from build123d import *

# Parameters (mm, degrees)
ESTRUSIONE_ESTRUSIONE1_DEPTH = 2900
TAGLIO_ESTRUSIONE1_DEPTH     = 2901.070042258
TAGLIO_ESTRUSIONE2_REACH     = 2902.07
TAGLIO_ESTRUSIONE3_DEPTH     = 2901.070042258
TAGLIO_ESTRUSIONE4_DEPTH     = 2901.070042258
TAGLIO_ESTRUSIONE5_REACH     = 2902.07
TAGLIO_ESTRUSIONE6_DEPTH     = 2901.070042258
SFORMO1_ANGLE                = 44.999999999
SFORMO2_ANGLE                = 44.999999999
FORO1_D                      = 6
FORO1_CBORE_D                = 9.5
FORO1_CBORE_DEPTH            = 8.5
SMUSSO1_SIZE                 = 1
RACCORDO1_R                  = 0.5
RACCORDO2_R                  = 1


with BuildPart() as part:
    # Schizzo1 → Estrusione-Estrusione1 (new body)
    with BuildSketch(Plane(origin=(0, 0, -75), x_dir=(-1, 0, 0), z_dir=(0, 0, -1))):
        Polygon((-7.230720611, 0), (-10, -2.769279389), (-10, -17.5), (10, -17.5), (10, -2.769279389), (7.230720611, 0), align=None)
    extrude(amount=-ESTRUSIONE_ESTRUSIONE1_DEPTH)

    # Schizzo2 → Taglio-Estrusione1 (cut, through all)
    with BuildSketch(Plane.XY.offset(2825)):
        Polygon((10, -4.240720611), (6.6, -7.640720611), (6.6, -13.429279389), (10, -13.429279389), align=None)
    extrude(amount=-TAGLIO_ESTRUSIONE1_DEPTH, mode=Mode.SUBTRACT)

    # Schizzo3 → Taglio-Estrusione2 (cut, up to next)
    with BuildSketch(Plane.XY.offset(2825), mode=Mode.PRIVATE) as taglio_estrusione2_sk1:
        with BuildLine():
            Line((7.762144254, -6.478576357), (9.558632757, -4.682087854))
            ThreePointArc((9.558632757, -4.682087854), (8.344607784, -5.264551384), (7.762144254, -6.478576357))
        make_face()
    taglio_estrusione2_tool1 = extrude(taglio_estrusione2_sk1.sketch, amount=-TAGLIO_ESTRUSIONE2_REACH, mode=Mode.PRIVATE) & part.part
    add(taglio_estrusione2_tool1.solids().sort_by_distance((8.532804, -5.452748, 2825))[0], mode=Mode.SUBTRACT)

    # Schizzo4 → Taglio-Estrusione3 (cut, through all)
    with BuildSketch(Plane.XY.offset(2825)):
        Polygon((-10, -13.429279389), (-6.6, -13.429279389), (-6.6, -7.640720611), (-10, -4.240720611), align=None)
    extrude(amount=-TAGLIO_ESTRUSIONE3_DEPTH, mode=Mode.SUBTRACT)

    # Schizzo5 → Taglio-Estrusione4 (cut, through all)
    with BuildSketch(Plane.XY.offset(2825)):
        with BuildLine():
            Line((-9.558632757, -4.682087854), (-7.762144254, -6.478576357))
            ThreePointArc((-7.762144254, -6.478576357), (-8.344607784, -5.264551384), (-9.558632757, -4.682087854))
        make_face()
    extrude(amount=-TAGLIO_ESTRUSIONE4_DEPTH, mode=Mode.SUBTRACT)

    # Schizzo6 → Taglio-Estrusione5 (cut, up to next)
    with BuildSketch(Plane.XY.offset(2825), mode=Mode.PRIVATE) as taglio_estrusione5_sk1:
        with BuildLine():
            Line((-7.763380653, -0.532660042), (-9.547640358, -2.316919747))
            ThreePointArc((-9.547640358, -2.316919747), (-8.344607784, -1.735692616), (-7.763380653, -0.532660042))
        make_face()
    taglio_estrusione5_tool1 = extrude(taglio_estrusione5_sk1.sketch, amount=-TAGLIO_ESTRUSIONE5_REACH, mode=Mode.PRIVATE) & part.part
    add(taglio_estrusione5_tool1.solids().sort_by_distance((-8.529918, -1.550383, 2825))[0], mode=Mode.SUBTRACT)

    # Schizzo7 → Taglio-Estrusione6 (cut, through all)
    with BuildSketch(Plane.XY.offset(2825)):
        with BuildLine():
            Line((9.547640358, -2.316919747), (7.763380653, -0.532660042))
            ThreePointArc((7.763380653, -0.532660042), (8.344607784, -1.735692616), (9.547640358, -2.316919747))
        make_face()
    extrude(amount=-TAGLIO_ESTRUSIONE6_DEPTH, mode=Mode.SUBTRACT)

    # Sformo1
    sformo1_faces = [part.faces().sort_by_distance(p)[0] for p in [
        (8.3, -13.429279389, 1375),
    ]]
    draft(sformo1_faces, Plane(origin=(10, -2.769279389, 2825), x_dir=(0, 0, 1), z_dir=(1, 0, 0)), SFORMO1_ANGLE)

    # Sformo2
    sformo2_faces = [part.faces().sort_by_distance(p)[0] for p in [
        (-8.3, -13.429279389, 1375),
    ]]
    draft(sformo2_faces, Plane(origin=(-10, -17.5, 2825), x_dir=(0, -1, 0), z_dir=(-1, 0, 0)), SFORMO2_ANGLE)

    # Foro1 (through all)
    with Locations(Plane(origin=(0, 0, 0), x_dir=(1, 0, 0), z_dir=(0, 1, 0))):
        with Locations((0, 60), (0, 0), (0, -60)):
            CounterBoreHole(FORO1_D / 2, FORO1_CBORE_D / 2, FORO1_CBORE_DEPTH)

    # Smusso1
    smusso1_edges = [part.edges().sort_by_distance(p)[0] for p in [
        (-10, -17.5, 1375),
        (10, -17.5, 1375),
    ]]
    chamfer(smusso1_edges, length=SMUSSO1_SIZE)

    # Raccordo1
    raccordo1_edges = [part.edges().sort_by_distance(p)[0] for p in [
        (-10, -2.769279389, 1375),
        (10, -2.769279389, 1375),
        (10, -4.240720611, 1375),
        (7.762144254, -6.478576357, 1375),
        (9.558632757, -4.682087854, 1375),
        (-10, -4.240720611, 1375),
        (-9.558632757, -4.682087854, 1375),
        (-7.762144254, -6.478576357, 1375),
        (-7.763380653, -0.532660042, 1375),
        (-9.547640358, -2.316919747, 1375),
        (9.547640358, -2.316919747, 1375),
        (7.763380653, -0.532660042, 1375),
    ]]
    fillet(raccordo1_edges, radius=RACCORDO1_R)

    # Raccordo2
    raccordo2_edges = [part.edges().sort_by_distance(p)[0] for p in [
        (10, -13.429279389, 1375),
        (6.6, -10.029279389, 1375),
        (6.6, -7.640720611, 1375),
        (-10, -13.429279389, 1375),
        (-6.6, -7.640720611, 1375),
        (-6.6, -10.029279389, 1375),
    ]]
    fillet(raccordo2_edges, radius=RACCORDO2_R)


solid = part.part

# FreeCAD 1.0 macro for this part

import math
import FreeCAD as App
import Part
import Sketcher
Q = App.Units.Quantity


def edges_at(feature, points):
    """Names of the edges that pass closest to the given points."""
    edges = feature.Shape.Edges
    near = lambda p: min(range(len(edges)), key=lambda i: edges[i].distToShape(Part.Vertex(*p))[0])
    return sorted({f"Edge{near(p) + 1}" for p in points})


def faces_at(feature, points):
    """Names of the faces that lie closest to the given points."""
    faces = feature.Shape.Faces
    near = lambda p: min(range(len(faces)), key=lambda i: faces[i].distToShape(Part.Vertex(*p))[0])
    return sorted({f"Face{near(p) + 1}" for p in points})

doc = App.newDocument("Part")
body = doc.addObject("PartDesign::Body", "Body")

# Sketch on XY plane
sketch1 = body.newObject("Sketcher::SketchObject", "Sketch")
sketch1.AttachmentSupport = (doc.getObject("XY_Plane"), [""])
sketch1.MapMode = "FlatFace"
sketch1.AttachmentOffset = App.Placement(App.Vector(0, 0, -75), App.Rotation())
sketch1.addGeometry([
    Part.LineSegment(App.Vector(7.2, 0, 0), App.Vector(10, -2.8, 0)),  # 0
    Part.LineSegment(App.Vector(10, -2.8, 0), App.Vector(10, -17.5, 0)),  # 1
    Part.LineSegment(App.Vector(10, -17.5, 0), App.Vector(-10, -17.5, 0)),  # 2
    Part.LineSegment(App.Vector(-10, -17.5, 0), App.Vector(-10, -2.8, 0)),  # 3
    Part.LineSegment(App.Vector(-10, -2.8, 0), App.Vector(-7.2, 0, 0)),  # 4
    Part.LineSegment(App.Vector(-7.2, 0, 0), App.Vector(7.2, 0, 0)),  # 5
], False)
sketch1.addConstraint([
    Sketcher.Constraint("Coincident", 0, 2, 1, 1),
    Sketcher.Constraint("Coincident", 1, 2, 2, 1),
    Sketcher.Constraint("Coincident", 2, 2, 3, 1),
    Sketcher.Constraint("Coincident", 3, 2, 4, 1),
    Sketcher.Constraint("Coincident", 4, 2, 5, 1),
    Sketcher.Constraint("Coincident", 5, 2, 0, 1),
    Sketcher.Constraint("Vertical", 1),
    Sketcher.Constraint("Horizontal", 2),
    Sketcher.Constraint("Vertical", 3),
    Sketcher.Constraint("Horizontal", 5),
    Sketcher.Constraint("Symmetric", 4, 2, 5, 2, -1, 1),
    Sketcher.Constraint("Symmetric", 0, 2, 3, 2, -2),
    Sketcher.Constraint("Perpendicular", 0, 4),
    Sketcher.Constraint("DistanceX", 2, 2, 2, 1, Q("20 mm")),
    Sketcher.Constraint("DistanceY", 1, 2, -1, 1, Q("17.5 mm")),
    Sketcher.Constraint("DistanceX", 5, 1, 5, 2, Q("14.461441 mm")),
])
pad1 = body.newObject("PartDesign::Pad", "Pad")
pad1.Profile = sketch1
pad1.Length = 2900

# Sketch on XY plane
sketch2 = body.newObject("Sketcher::SketchObject", "Sketch001")
sketch2.AttachmentSupport = (doc.getObject("XY_Plane"), [""])
sketch2.MapMode = "FlatFace"
sketch2.AttachmentOffset = App.Placement(App.Vector(0, 0, 2825), App.Rotation())
sketch2.addGeometry([
    Part.LineSegment(App.Vector(10, -4.2, 0), App.Vector(6.6, -7.6, 0)),
    Part.LineSegment(App.Vector(6.6, -7.6, 0), App.Vector(6.6, -13.4, 0)),
    Part.LineSegment(App.Vector(6.6, -13.4, 0), App.Vector(10, -13.4, 0)),
    Part.LineSegment(App.Vector(10, -13.4, 0), App.Vector(10, -4.2, 0)),
], False)
sketch2.addConstraint([
    Sketcher.Constraint("Coincident", 0, 2, 1, 1),
    Sketcher.Constraint("Coincident", 1, 2, 2, 1),
    Sketcher.Constraint("Coincident", 2, 2, 3, 1),
    Sketcher.Constraint("Coincident", 3, 2, 0, 1),
    Sketcher.Constraint("Vertical", 1),
    Sketcher.Constraint("Horizontal", 2),
    Sketcher.Constraint("Vertical", 3),
    Sketcher.Constraint("Angle", 0, Q("-135 deg")),
    Sketcher.Constraint("DistanceX", 2, 1, 2, 2, Q("3.4 mm")),
    Sketcher.Constraint("DistanceX", -1, 1, 2, 2, Q("10 mm")),
    Sketcher.Constraint("DistanceY", 1, 2, 1, 1, Q("5.788559 mm")),
    Sketcher.Constraint("DistanceY", 0, 2, -1, 1, Q("7.640721 mm")),
])
pocket1 = body.newObject("PartDesign::Pocket", "Pocket")
pocket1.Profile = sketch2
pocket1.Type = "ThroughAll"

# Sketch on XY plane
sketch3 = body.newObject("Sketcher::SketchObject", "Sketch002")
sketch3.AttachmentSupport = (doc.getObject("XY_Plane"), [""])
sketch3.MapMode = "FlatFace"
sketch3.AttachmentOffset = App.Placement(App.Vector(0, 0, 2825), App.Rotation())
sketch3.addGeometry([
    Part.LineSegment(App.Vector(7.8, -6.5, 0), App.Vector(9.6, -4.7, 0)),
    Part.ArcOfCircle(Part.Circle(App.Vector(9.8, -6.7, 0), App.Vector(0, 0, 1), 2), math.radians(96), math.radians(174)),
], False)
sketch3.addConstraint([
    Sketcher.Constraint("Coincident", 0, 1, 1, 2),
    Sketcher.Constraint("Coincident", 1, 1, 0, 2),
    Sketcher.Constraint("Angle", 0, Q("45 deg")),
    Sketcher.Constraint("Radius", 1, Q("2.03 mm")),
    Sketcher.Constraint("DistanceY", 1, 3, 0, 1, Q("0.221402 mm")),
    Sketcher.Constraint("DistanceY", 1, 3, -1, 1, Q("6.699978 mm")),
    Sketcher.Constraint("DistanceX", -1, 1, 1, 3, Q("9.780035 mm")),
])
pocket2 = body.newObject("PartDesign::Pocket", "Pocket001")
pocket2.Profile = sketch3
pocket2.Type = "UpToFirst"

# Sketch on XY plane
sketch4 = body.newObject("Sketcher::SketchObject", "Sketch003")
sketch4.AttachmentSupport = (doc.getObject("XY_Plane"), [""])
sketch4.MapMode = "FlatFace"
sketch4.AttachmentOffset = App.Placement(App.Vector(0, 0, 2825), App.Rotation())
sketch4.addGeometry([
    Part.LineSegment(App.Vector(-10, -13.4, 0), App.Vector(-6.6, -13.4, 0)),
    Part.LineSegment(App.Vector(-6.6, -13.4, 0), App.Vector(-6.6, -7.6, 0)),
    Part.LineSegment(App.Vector(-6.6, -7.6, 0), App.Vector(-10, -4.2, 0)),
    Part.LineSegment(App.Vector(-10, -4.2, 0), App.Vector(-10, -13.4, 0)),
], False)
sketch4.addConstraint([
    Sketcher.Constraint("Coincident", 0, 2, 1, 1),
    Sketcher.Constraint("Coincident", 1, 2, 2, 1),
    Sketcher.Constraint("Coincident", 2, 2, 3, 1),
    Sketcher.Constraint("Coincident", 3, 2, 0, 1),
    Sketcher.Constraint("Horizontal", 0),
    Sketcher.Constraint("Vertical", 1),
    Sketcher.Constraint("Vertical", 3),
    Sketcher.Constraint("Angle", 2, Q("135 deg")),
    Sketcher.Constraint("DistanceX", 0, 1, 0, 2, Q("3.4 mm")),
    Sketcher.Constraint("DistanceX", 2, 2, -1, 1, Q("10 mm")),
    Sketcher.Constraint("DistanceY", 1, 1, 1, 2, Q("5.788559 mm")),
    Sketcher.Constraint("DistanceY", 0, 2, -1, 1, Q("13.429279 mm")),
])
pocket3 = body.newObject("PartDesign::Pocket", "Pocket002")
pocket3.Profile = sketch4
pocket3.Type = "ThroughAll"

# Sketch on XY plane
sketch5 = body.newObject("Sketcher::SketchObject", "Sketch004")
sketch5.AttachmentSupport = (doc.getObject("XY_Plane"), [""])
sketch5.MapMode = "FlatFace"
sketch5.AttachmentOffset = App.Placement(App.Vector(0, 0, 2825), App.Rotation())
sketch5.addGeometry([
    Part.LineSegment(App.Vector(-9.6, -4.7, 0), App.Vector(-7.8, -6.5, 0)),
    Part.ArcOfCircle(Part.Circle(App.Vector(-9.8, -6.7, 0), App.Vector(0, 0, 1), 2), math.radians(6), math.radians(84)),
], False)
sketch5.addConstraint([
    Sketcher.Constraint("Coincident", 0, 1, 1, 2),
    Sketcher.Constraint("Coincident", 1, 1, 0, 2),
    Sketcher.Constraint("Angle", 0, Q("-45 deg")),
    Sketcher.Constraint("Radius", 1, Q("2.03 mm")),
    Sketcher.Constraint("DistanceX", 1, 3, 0, 1, Q("0.221402 mm")),
    Sketcher.Constraint("DistanceY", 1, 3, -1, 1, Q("6.699978 mm")),
    Sketcher.Constraint("DistanceX", 1, 3, -1, 1, Q("9.780035 mm")),
])
pocket4 = body.newObject("PartDesign::Pocket", "Pocket003")
pocket4.Profile = sketch5
pocket4.Type = "ThroughAll"

# Sketch on XY plane
sketch6 = body.newObject("Sketcher::SketchObject", "Sketch005")
sketch6.AttachmentSupport = (doc.getObject("XY_Plane"), [""])
sketch6.MapMode = "FlatFace"
sketch6.AttachmentOffset = App.Placement(App.Vector(0, 0, 2825), App.Rotation())
sketch6.addGeometry([
    Part.LineSegment(App.Vector(-7.8, -0.5, 0), App.Vector(-9.5, -2.3, 0)),
    Part.ArcOfCircle(Part.Circle(App.Vector(-9.8, -0.3, 0), App.Vector(0, 0, 1), 2), math.radians(-83), math.radians(-7)),
], False)
sketch6.addConstraint([
    Sketcher.Constraint("Coincident", 0, 1, 1, 2),
    Sketcher.Constraint("Coincident", 1, 1, 0, 2),
    Sketcher.Constraint("Angle", 0, Q("-135 deg")),
    Sketcher.Constraint("Radius", 1, Q("2.03 mm")),
    Sketcher.Constraint("DistanceX", 0, 1, -1, 1, Q("7.763381 mm")),
    Sketcher.Constraint("DistanceY", 0, 1, -1, 1, Q("0.53266 mm")),
    Sketcher.Constraint("DistanceX", 1, 1, -1, 1, Q("9.54764 mm")),
])
pocket5 = body.newObject("PartDesign::Pocket", "Pocket004")
pocket5.Profile = sketch6
pocket5.Type = "UpToFirst"

# Sketch on XY plane
sketch7 = body.newObject("Sketcher::SketchObject", "Sketch006")
sketch7.AttachmentSupport = (doc.getObject("XY_Plane"), [""])
sketch7.MapMode = "FlatFace"
sketch7.AttachmentOffset = App.Placement(App.Vector(0, 0, 2825), App.Rotation())
sketch7.addGeometry([
    Part.LineSegment(App.Vector(9.5, -2.3, 0), App.Vector(7.8, -0.5, 0)),
    Part.ArcOfCircle(Part.Circle(App.Vector(9.8, -0.3, 0), App.Vector(0, 0, 1), 2), math.radians(-173), math.radians(-97)),
], False)
sketch7.addConstraint([
    Sketcher.Constraint("Coincident", 0, 1, 1, 2),
    Sketcher.Constraint("Coincident", 1, 1, 0, 2),
    Sketcher.Constraint("Angle", 0, Q("135 deg")),
    Sketcher.Constraint("Radius", 1, Q("2.03 mm")),
    Sketcher.Constraint("DistanceX", -1, 1, 0, 1, Q("9.54764 mm")),
    Sketcher.Constraint("DistanceY", 0, 1, -1, 1, Q("2.31692 mm")),
    Sketcher.Constraint("DistanceX", -1, 1, 1, 1, Q("7.763381 mm")),
])
pocket6 = body.newObject("PartDesign::Pocket", "Pocket005")
pocket6.Profile = sketch7
pocket6.Type = "ThroughAll"
doc.recompute()

datumplane = body.newObject("PartDesign::Plane", "DatumPlane")
datumplane.AttachmentSupport = (doc.getObject("YZ_Plane"), [""])
datumplane.MapMode = "FlatFace"
datumplane.AttachmentOffset = App.Placement(App.Vector(0, 0, 10), App.Rotation())
draft = body.newObject("PartDesign::Draft", "Draft")
draft.Base = (pocket6, faces_at(pocket6, [(8.3, -13.429, 1375)]))
draft.NeutralPlane = (datumplane, [""])
draft.Angle = 45
draft.Reversed = False
doc.recompute()

datumplane2 = body.newObject("PartDesign::Plane", "DatumPlane001")
datumplane2.AttachmentSupport = (doc.getObject("YZ_Plane"), [""])
datumplane2.MapMode = "FlatFace"
datumplane2.AttachmentOffset = App.Placement(App.Vector(0, 0, -10), App.Rotation())
draft2 = body.newObject("PartDesign::Draft", "Draft001")
draft2.Base = (draft, faces_at(draft, [(-8.3, -13.429, 1375)]))
draft2.NeutralPlane = (datumplane2, [""])
draft2.Angle = 45
draft2.Reversed = True

# Sketch on XZ plane
sketch8 = body.newObject("Sketcher::SketchObject", "Sketch007")
sketch8.AttachmentSupport = (doc.getObject("XZ_Plane"), [""])
sketch8.MapMode = "FlatFace"
sketch8.addGeometry([
    Part.Circle(App.Vector(0, -60, 0), App.Vector(0, 0, 1), 3),
    Part.Circle(App.Vector(0, 0, 0), App.Vector(0, 0, 1), 3),
    Part.Circle(App.Vector(0, 60, 0), App.Vector(0, 0, 1), 3),
], False)
sketch8.addConstraint([
    Sketcher.Constraint("Coincident", 1, 3, -1, 1),
    Sketcher.Constraint("Equal", 0, 1),
    Sketcher.Constraint("Equal", 1, 2),
    Sketcher.Constraint("Symmetric", 0, 3, 2, 3, -1, 1),
    Sketcher.Constraint("PointOnObject", 0, 3, -2),
    Sketcher.Constraint("Diameter", 0, Q("6 mm")),
    Sketcher.Constraint("DistanceY", 0, 3, -1, 1, Q("60 mm")),
])
doc.recompute()
hole = body.newObject("PartDesign::Hole", "Hole")
hole.Profile = sketch8
hole.ThreadType = "None"
hole.Diameter = 6
hole.DepthType = "ThroughAll"
hole.HoleCutType = "Counterbore"
hole.HoleCutDiameter = 9.5
hole.HoleCutDepth = 8.5
hole.Reversed = True
doc.recompute()

chamfer = body.newObject("PartDesign::Chamfer", "Chamfer")
chamfer.Base = (hole, edges_at(hole, [(-10, -17.5, 1375), (10, -17.5, 1375)]))
chamfer.Size = 1
doc.recompute()

fillet = body.newObject("PartDesign::Fillet", "Fillet")
fillet.Base = (chamfer, edges_at(chamfer, [
    (-10, -2.769, 1375),
    (10, -2.769, 1375),
    (10, -4.241, 1375),
    (7.762, -6.479, 1375),
    (9.559, -4.682, 1375),
    (-10, -4.241, 1375),
    (-9.559, -4.682, 1375),
    (-7.762, -6.479, 1375),
    (-7.763, -0.533, 1375),
    (-9.548, -2.317, 1375),
    (9.548, -2.317, 1375),
    (7.763, -0.533, 1375),
]))
fillet.Radius = 0.5
doc.recompute()

fillet2 = body.newObject("PartDesign::Fillet", "Fillet001")
fillet2.Base = (fillet, edges_at(fillet, [
    (10, -13.429, 1375),
    (6.6, -10.029, 1375),
    (6.6, -7.641, 1375),
    (-10, -13.429, 1375),
    (-6.6, -7.641, 1375),
    (-6.6, -10.029, 1375),
]))
fillet2.Radius = 1

doc.recompute()
